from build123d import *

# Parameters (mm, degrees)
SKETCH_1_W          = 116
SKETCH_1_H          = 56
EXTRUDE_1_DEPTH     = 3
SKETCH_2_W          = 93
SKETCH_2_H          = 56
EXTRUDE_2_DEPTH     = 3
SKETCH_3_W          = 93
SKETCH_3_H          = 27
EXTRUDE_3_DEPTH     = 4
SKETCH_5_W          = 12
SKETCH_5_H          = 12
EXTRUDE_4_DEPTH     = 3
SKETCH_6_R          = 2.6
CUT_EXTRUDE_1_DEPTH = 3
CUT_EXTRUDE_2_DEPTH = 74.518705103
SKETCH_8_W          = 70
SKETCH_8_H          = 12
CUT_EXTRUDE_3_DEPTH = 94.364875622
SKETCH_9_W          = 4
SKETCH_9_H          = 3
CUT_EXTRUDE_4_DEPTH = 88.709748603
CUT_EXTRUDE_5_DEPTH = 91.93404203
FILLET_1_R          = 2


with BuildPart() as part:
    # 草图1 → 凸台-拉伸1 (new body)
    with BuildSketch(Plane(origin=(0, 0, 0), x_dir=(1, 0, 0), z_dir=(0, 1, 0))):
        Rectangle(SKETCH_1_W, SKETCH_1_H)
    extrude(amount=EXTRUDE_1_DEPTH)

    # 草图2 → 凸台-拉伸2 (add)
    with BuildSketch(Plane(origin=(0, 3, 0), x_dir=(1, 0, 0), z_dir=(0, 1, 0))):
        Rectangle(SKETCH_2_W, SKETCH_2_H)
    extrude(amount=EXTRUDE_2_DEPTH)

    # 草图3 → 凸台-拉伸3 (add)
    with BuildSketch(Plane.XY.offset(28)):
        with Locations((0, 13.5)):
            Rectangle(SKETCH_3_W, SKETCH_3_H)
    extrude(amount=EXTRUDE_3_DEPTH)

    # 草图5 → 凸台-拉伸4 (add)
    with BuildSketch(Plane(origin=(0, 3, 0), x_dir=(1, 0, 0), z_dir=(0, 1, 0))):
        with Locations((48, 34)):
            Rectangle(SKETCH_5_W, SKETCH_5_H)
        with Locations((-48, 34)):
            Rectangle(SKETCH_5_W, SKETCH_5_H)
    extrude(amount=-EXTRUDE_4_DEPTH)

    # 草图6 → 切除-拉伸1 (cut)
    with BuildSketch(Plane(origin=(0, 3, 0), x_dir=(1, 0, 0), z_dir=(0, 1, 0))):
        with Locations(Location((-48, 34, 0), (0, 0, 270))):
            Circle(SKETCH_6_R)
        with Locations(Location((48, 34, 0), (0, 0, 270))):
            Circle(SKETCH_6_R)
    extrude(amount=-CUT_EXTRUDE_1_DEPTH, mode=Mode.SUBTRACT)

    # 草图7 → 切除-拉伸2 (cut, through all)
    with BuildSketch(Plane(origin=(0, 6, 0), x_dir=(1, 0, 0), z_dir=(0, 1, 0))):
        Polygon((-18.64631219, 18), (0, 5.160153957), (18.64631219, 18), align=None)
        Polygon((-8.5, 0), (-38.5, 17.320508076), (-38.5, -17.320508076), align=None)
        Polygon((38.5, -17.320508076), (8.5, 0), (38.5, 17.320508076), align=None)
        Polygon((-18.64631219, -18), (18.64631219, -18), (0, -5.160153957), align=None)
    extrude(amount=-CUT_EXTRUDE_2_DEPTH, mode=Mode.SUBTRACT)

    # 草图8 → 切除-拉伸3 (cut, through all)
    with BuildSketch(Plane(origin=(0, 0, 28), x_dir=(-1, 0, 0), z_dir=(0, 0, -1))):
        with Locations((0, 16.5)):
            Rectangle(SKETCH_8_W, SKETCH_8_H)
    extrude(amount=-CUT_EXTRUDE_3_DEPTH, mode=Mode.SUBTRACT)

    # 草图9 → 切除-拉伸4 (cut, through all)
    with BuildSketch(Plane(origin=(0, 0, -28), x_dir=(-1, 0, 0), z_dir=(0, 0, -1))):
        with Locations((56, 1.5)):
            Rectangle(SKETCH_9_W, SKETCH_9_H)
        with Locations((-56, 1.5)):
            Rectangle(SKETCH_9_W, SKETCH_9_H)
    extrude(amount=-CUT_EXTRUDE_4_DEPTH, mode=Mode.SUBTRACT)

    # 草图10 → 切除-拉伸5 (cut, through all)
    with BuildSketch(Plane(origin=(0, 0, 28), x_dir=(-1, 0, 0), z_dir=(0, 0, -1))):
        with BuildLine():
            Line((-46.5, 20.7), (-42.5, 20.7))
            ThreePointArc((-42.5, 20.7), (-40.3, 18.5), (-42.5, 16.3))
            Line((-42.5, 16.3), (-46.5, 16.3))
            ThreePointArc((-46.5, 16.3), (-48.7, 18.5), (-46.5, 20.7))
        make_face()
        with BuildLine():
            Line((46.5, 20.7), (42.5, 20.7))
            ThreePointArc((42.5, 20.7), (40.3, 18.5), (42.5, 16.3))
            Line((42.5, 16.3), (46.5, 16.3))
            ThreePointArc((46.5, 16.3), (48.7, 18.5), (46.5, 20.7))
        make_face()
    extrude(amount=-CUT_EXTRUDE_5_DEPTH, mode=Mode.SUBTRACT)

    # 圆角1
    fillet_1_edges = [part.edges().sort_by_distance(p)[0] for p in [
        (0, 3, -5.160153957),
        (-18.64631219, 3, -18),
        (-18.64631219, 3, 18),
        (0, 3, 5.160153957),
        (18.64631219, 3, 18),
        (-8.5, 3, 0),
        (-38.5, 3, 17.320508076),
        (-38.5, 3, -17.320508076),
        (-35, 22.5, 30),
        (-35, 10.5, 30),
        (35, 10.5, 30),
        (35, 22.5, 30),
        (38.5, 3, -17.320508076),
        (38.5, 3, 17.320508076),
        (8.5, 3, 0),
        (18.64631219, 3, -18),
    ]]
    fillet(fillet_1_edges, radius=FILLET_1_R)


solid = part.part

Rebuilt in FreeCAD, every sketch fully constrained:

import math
import FreeCAD as App
import Part
import Sketcher

V = App.Vector
Q = App.Units.Quantity


def edges_at(feature, points):
    """Names of the edges that pass closest to the given points."""
    edges = feature.Shape.Edges
    near = lambda p: min(range(len(edges)), key=lambda i: edges[i].distToShape(Part.Vertex(*p))[0])
    return sorted({f"Edge{near(p) + 1}" for p in points})

doc = App.newDocument("Part")
body = doc.addObject("PartDesign::Body", "Body")

# Sketch on XZ plane
sketch1 = body.newObject("Sketcher::SketchObject", "Sketch")
sketch1.AttachmentSupport = (doc.getObject("XZ_Plane"), [""])
sketch1.MapMode = "FlatFace"
sketch1.addGeometry([
    Part.LineSegment(V(-58, -28, 0), V(-58, 28, 0)),
    Part.LineSegment(V(-58, 28, 0), V(58, 28, 0)),
    Part.LineSegment(V(58, 28, 0), V(58, -28, 0)),
    Part.LineSegment(V(58, -28, 0), V(-58, -28, 0)),
], False)
sketch1.addConstraint([
    Sketcher.Constraint("Coincident", 0, 2, 1, 1),
    Sketcher.Constraint("Coincident", 1, 2, 2, 1),
    Sketcher.Constraint("Coincident", 2, 2, 3, 1),
    Sketcher.Constraint("Coincident", 3, 2, 0, 1),
    Sketcher.Constraint("Vertical", 0),
    Sketcher.Constraint("Horizontal", 1),
    Sketcher.Constraint("Vertical", 2),
    Sketcher.Constraint("Horizontal", 3),
    Sketcher.Constraint("Symmetric", 0, 2, 2, 2, -1, 1),
    Sketcher.Constraint("DistanceX", 1, 1, 1, 2, 116.0),
    Sketcher.Constraint("DistanceY", 0, 1, 0, 2, 56.0),
])
pad1 = body.newObject("PartDesign::Pad", "Pad")
pad1.Profile = sketch1
pad1.Length = 3
pad1.Reversed = True

# Sketch on XZ plane
sketch2 = body.newObject("Sketcher::SketchObject", "Sketch001")
sketch2.AttachmentSupport = (doc.getObject("XZ_Plane"), [""])
sketch2.MapMode = "FlatFace"
sketch2.AttachmentOffset = App.Placement(V(0, 0, -3), App.Rotation())
sketch2.addGeometry([
    Part.LineSegment(V(-46, -28, 0), V(-46, 28, 0)),
    Part.LineSegment(V(-46, 28, 0), V(46, 28, 0)),
    Part.LineSegment(V(46, 28, 0), V(46, -28, 0)),
    Part.LineSegment(V(46, -28, 0), V(-46, -28, 0)),
], False)
sketch2.addConstraint([
    Sketcher.Constraint("Coincident", 0, 2, 1, 1),
    Sketcher.Constraint("Coincident", 1, 2, 2, 1),
    Sketcher.Constraint("Coincident", 2, 2, 3, 1),
    Sketcher.Constraint("Coincident", 3, 2, 0, 1),
    Sketcher.Constraint("Vertical", 0),
    Sketcher.Constraint("Horizontal", 1),
    Sketcher.Constraint("Vertical", 2),
    Sketcher.Constraint("Horizontal", 3),
    Sketcher.Constraint("Symmetric", 0, 2, 2, 2, -1, 1),
    Sketcher.Constraint("DistanceX", 1, 1, 1, 2, 93.0),
    Sketcher.Constraint("DistanceY", 0, 1, 0, 2, 56.0),
])
pad2 = body.newObject("PartDesign::Pad", "Pad001")
pad2.Profile = sketch2
pad2.Length = 3
pad2.Reversed = True

# Sketch on XY plane
sketch3 = body.newObject("Sketcher::SketchObject", "Sketch002")
sketch3.AttachmentSupport = (doc.getObject("XY_Plane"), [""])
sketch3.MapMode = "FlatFace"
sketch3.AttachmentOffset = App.Placement(V(0, 0, 28), App.Rotation())
sketch3.addGeometry([
    Part.LineSegment(V(-46, 27, 0), V(-46, 0, 0)),
    Part.LineSegment(V(-46, 0, 0), V(46, 0, 0)),
    Part.LineSegment(V(46, 0, 0), V(46, 27, 0)),
    Part.LineSegment(V(46, 27, 0), V(-46, 27, 0)),
], False)
sketch3.addConstraint([
    Sketcher.Constraint("Coincident", 0, 2, 1, 1),
    Sketcher.Constraint("Coincident", 1, 2, 2, 1),
    Sketcher.Constraint("Coincident", 2, 2, 3, 1),
    Sketcher.Constraint("Coincident", 3, 2, 0, 1),
    Sketcher.Constraint("Vertical", 0),
    Sketcher.Constraint("Horizontal", 1),
    Sketcher.Constraint("Vertical", 2),
    Sketcher.Constraint("Horizontal", 3),
    Sketcher.Constraint("Symmetric", 0, 2, 1, 2, -1, 1),
    Sketcher.Constraint("DistanceX", 1, 1, 1, 2, 93.0),
    Sketcher.Constraint("DistanceY", 0, 2, 0, 1, 27.0),
])
pad3 = body.newObject("PartDesign::Pad", "Pad002")
pad3.Profile = sketch3
pad3.Length = 4

# Sketch on XZ plane
sketch4 = body.newObject("Sketcher::SketchObject", "Sketch003")
sketch4.AttachmentSupport = (doc.getObject("XZ_Plane"), [""])
sketch4.MapMode = "FlatFace"
sketch4.AttachmentOffset = App.Placement(V(0, 0, -3), App.Rotation())
sketch4.addGeometry([
    Part.LineSegment(V(42, -40, 0), V(42, -28, 0)),  # 0
    Part.LineSegment(V(42, -28, 0), V(54, -28, 0)),  # 1
    Part.LineSegment(V(54, -28, 0), V(54, -40, 0)),  # 2
    Part.LineSegment(V(54, -40, 0), V(42, -40, 0)),  # 3
    Part.LineSegment(V(-54, -40, 0), V(-54, -28, 0)),  # 4
    Part.LineSegment(V(-54, -28, 0), V(-42, -28, 0)),  # 5
    Part.LineSegment(V(-42, -28, 0), V(-42, -40, 0)),  # 6
    Part.LineSegment(V(-42, -40, 0), V(-54, -40, 0)),  # 7
], False)
sketch4.addConstraint([
    Sketcher.Constraint("Coincident", 0, 2, 1, 1),
    Sketcher.Constraint("Coincident", 1, 2, 2, 1),
    Sketcher.Constraint("Coincident", 2, 2, 3, 1),
    Sketcher.Constraint("Coincident", 3, 2, 0, 1),
    Sketcher.Constraint("Coincident", 4, 2, 5, 1),
    Sketcher.Constraint("Coincident", 5, 2, 6, 1),
    Sketcher.Constraint("Coincident", 6, 2, 7, 1),
    Sketcher.Constraint("Coincident", 7, 2, 4, 1),
    Sketcher.Constraint("Vertical", 0),
    Sketcher.Constraint("Horizontal", 1),
    Sketcher.Constraint("Vertical", 2),
    Sketcher.Constraint("Horizontal", 3),
    Sketcher.Constraint("Vertical", 4),
    Sketcher.Constraint("Horizontal", 5),
    Sketcher.Constraint("Vertical", 6),
    Sketcher.Constraint("Horizontal", 7),
    Sketcher.Constraint("Symmetric", 1, 2, 4, 2, -2),
    Sketcher.Constraint("Symmetric", 3, 2, 6, 2, -2),
    Sketcher.Constraint("Equal", 7, 0),
    Sketcher.Constraint("DistanceX", 1, 1, 1, 2, 12.0),
    Sketcher.Constraint("DistanceX", -1, 1, 0, 2, 42.0),
    Sketcher.Constraint("DistanceY", 0, 2, -1, 1, 28.0),
])
pad4 = body.newObject("PartDesign::Pad", "Pad003")
pad4.Profile = sketch4
pad4.Length = 3

# Sketch on XZ plane
sketch5 = body.newObject("Sketcher::SketchObject", "Sketch004")
sketch5.AttachmentSupport = (doc.getObject("XZ_Plane"), [""])
sketch5.MapMode = "FlatFace"
sketch5.AttachmentOffset = App.Placement(V(0, 0, -3), App.Rotation())
sketch5.addGeometry([
    Part.Circle(V(-48, -34, 0), V(0, 0, 1), 2.6),
    Part.Circle(V(48, -34, 0), V(0, 0, 1), 2.6),
], False)
sketch5.addConstraint([
    Sketcher.Constraint("Equal", 0, 1),
    Sketcher.Constraint("Symmetric", 0, 3, 1, 3, -2),
    Sketcher.Constraint("Diameter", 0, 5.2),
    Sketcher.Constraint("DistanceX", 0, 3, -1, 1, 48.0),
    Sketcher.Constraint("DistanceY", 0, 3, -1, 1, 34.0),
])
pocket1 = body.newObject("PartDesign::Pocket", "Pocket")
pocket1.Profile = sketch5
pocket1.Length = 3
pocket1.Reversed = True

# Sketch on XZ plane
sketch6 = body.newObject("Sketcher::SketchObject", "Sketch005")
sketch6.AttachmentSupport = (doc.getObject("XZ_Plane"), [""])
sketch6.MapMode = "FlatFace"
sketch6.AttachmentOffset = App.Placement(V(0, 0, -6), App.Rotation())
sketch6.addGeometry([
    Part.LineSegment(V(-19, -18, 0), V(0, -5, 0)),  # 0
    Part.LineSegment(V(0, -5, 0), V(19, -18, 0)),  # 1
    Part.LineSegment(V(19, -18, 0), V(-19, -18, 0)),  # 2
    Part.LineSegment(V(-8, 0, 0), V(-38, -17, 0)),  # 3
    Part.LineSegment(V(-38, -17, 0), V(-38, 17, 0)),  # 4
    Part.LineSegment(V(-38, 17, 0), V(-8, 0, 0)),  # 5
    Part.LineSegment(V(8, 0, 0), V(38, 17, 0)),  # 6
    Part.LineSegment(V(38, 17, 0), V(38, -17, 0)),  # 7
    Part.LineSegment(V(38, -17, 0), V(8, 0, 0)),  # 8
    Part.LineSegment(V(-19, 18, 0), V(19, 18, 0)),  # 9
    Part.LineSegment(V(19, 18, 0), V(0, 5, 0)),  # 10
    Part.LineSegment(V(0, 5, 0), V(-19, 18, 0)),  # 11
], False)
sketch6.addConstraint([
    Sketcher.Constraint("Coincident", 0, 2, 1, 1),
    Sketcher.Constraint("Coincident", 1, 2, 2, 1),
    Sketcher.Constraint("Coincident", 2, 2, 0, 1),
    Sketcher.Constraint("Coincident", 3, 2, 4, 1),
    Sketcher.Constraint("Coincident", 4, 2, 5, 1),
    Sketcher.Constraint("Coincident", 5, 2, 3, 1),
    Sketcher.Constraint("Coincident", 6, 2, 7, 1),
    Sketcher.Constraint("Coincident", 7, 2, 8, 1),
    Sketcher.Constraint("Coincident", 8, 2, 6, 1),
    Sketcher.Constraint("Coincident", 9, 2, 10, 1),
    Sketcher.Constraint("Coincident", 10, 2, 11, 1),
    Sketcher.Constraint("Coincident", 11, 2, 9, 1),
    Sketcher.Constraint("Horizontal", 2),
    Sketcher.Constraint("Vertical", 4),
    Sketcher.Constraint("Vertical", 7),
    Sketcher.Constraint("Horizontal", 9),
    Sketcher.Constraint("Symmetric", 3, 2, 6, 2, -1, 1),
    Sketcher.Constraint("Symmetric", 5, 2, 8, 2, -1, 1),
    Sketcher.Constraint("Symmetric", 2, 2, 9, 2, -1, 1),
    Sketcher.Constraint("Symmetric", 0, 2, 10, 2, -1, 1),
    Sketcher.Constraint("PointOnObject", 0, 2, -2),
    Sketcher.Constraint("PointOnObject", 5, 2, -1),
    Sketcher.Constraint("Parallel", 5, 8),
    Sketcher.Constraint("Parallel", 1, 11),
    Sketcher.Constraint("Horizontal", 4, 2, 6, 2),
    Sketcher.Constraint("Vertical", 1, 2, 9, 2),
    Sketcher.Constraint("Angle", 3, Q("-150 deg")),
    Sketcher.Constraint("DistanceY", 1, 2, -1, 1, 18.0),
    Sketcher.Constraint("DistanceX", 3, 2, 5, 2, 30.0),
    Sketcher.Constraint("DistanceX", 5, 2, 6, 2, 47.0),
    Sketcher.Constraint("DistanceX", 2, 2, 2, 1, 37.292624),
    Sketcher.Constraint("Distance", 0, 22.639492),
])
pocket2 = body.newObject("PartDesign::Pocket", "Pocket001")
pocket2.Profile = sketch6
pocket2.Type = "ThroughAll"
pocket2.Reversed = True

# Sketch on XY plane
sketch7 = body.newObject("Sketcher::SketchObject", "Sketch006")
sketch7.AttachmentSupport = (doc.getObject("XY_Plane"), [""])
sketch7.MapMode = "FlatFace"
sketch7.AttachmentOffset = App.Placement(V(0, 0, 28), App.Rotation())
sketch7.addGeometry([
    Part.LineSegment(V(35, 22, 0), V(35, 10, 0)),
    Part.LineSegment(V(35, 10, 0), V(-35, 10, 0)),
    Part.LineSegment(V(-35, 10, 0), V(-35, 22, 0)),
    Part.LineSegment(V(-35, 22, 0), V(35, 22, 0)),
], False)
sketch7.addConstraint([
    Sketcher.Constraint("Coincident", 0, 2, 1, 1),
    Sketcher.Constraint("Coincident", 1, 2, 2, 1),
    Sketcher.Constraint("Coincident", 2, 2, 3, 1),
    Sketcher.Constraint("Coincident", 3, 2, 0, 1),
    Sketcher.Constraint("Vertical", 0),
    Sketcher.Constraint("Horizontal", 1),
    Sketcher.Constraint("Vertical", 2),
    Sketcher.Constraint("Horizontal", 3),
    Sketcher.Constraint("DistanceX", 1, 2, 1, 1, 70.0),
    Sketcher.Constraint("DistanceY", 0, 2, 0, 1, 12.0),
    Sketcher.Constraint("DistanceX", -1, 1, 0, 2, 35.0),
    Sketcher.Constraint("DistanceY", -1, 1, 0, 2, 10.5),
])
pocket3 = body.newObject("PartDesign::Pocket", "Pocket002")
pocket3.Profile = sketch7
pocket3.Type = "ThroughAll"
pocket3.Reversed = True

# Sketch on XY plane
sketch8 = body.newObject("Sketcher::SketchObject", "Sketch007")
sketch8.AttachmentSupport = (doc.getObject("XY_Plane"), [""])
sketch8.MapMode = "FlatFace"
sketch8.AttachmentOffset = App.Placement(V(0, 0, -28), App.Rotation())
sketch8.addGeometry([
    Part.LineSegment(V(-54, 3, 0), V(-54, 0, 0)),  # 0
    Part.LineSegment(V(-54, 0, 0), V(-58, 0, 0)),  # 1
    Part.LineSegment(V(-58, 0, 0), V(-58, 3, 0)),  # 2
    Part.LineSegment(V(-58, 3, 0), V(-54, 3, 0)),  # 3
    Part.LineSegment(V(58, 3, 0), V(58, 0, 0)),  # 4
    Part.LineSegment(V(58, 0, 0), V(54, 0, 0)),  # 5
    Part.LineSegment(V(54, 0, 0), V(54, 3, 0)),  # 6
    Part.LineSegment(V(54, 3, 0), V(58, 3, 0)),  # 7
], False)
sketch8.addConstraint([
    Sketcher.Constraint("Coincident", 0, 2, 1, 1),
    Sketcher.Constraint("Coincident", 1, 2, 2, 1),
    Sketcher.Constraint("Coincident", 2, 2, 3, 1),
    Sketcher.Constraint("Coincident", 3, 2, 0, 1),
    Sketcher.Constraint("Coincident", 4, 2, 5, 1),
    Sketcher.Constraint("Coincident", 5, 2, 6, 1),
    Sketcher.Constraint("Coincident", 6, 2, 7, 1),
    Sketcher.Constraint("Coincident", 7, 2, 4, 1),
    Sketcher.Constraint("Vertical", 0),
    Sketcher.Constraint("Horizontal", 1),
    Sketcher.Constraint("Vertical", 2),
    Sketcher.Constraint("Horizontal", 3),
    Sketcher.Constraint("Vertical", 4),
    Sketcher.Constraint("Horizontal", 5),
    Sketcher.Constraint("Vertical", 6),
    Sketcher.Constraint("Horizontal", 7),
    Sketcher.Constraint("Symmetric", 1, 2, 4, 2, -1, 1),
    Sketcher.Constraint("Symmetric", 0, 2, 5, 2, -2),
    Sketcher.Constraint("Horizontal", 3, 2, 6, 2),
    Sketcher.Constraint("DistanceX", 1, 2, 1, 1, 4.0),
    Sketcher.Constraint("DistanceY", 0, 2, 0, 1, 3.0),
    Sketcher.Constraint("DistanceX", 0, 2, -1, 1, 54.0),
])
pocket4 = body.newObject("PartDesign::Pocket", "Pocket003")
pocket4.Profile = sketch8
pocket4.Type = "ThroughAll"
pocket4.Reversed = True

# Sketch on XY plane
sketch9 = body.newObject("Sketcher::SketchObject", "Sketch008")
sketch9.AttachmentSupport = (doc.getObject("XY_Plane"), [""])
sketch9.MapMode = "FlatFace"
sketch9.AttachmentOffset = App.Placement(V(0, 0, 28), App.Rotation())
sketch9.addGeometry([
    Part.LineSegment(V(42.5, 20.7, 0), V(46.5, 20.7, 0)),  # 0
    Part.ArcOfCircle(Part.Circle(V(46.5, 18.5, 0), V(0, 0, 1), 2.2), math.radians(-90), math.radians(90)),  # 1
    Part.LineSegment(V(46.5, 16.3, 0), V(42.5, 16.3, 0)),  # 2
    Part.ArcOfCircle(Part.Circle(V(42.5, 18.5, 0), V(0, 0, 1), 2.2), math.radians(90), math.radians(270)),  # 3
    Part.LineSegment(V(-46.5, 20.7, 0), V(-42.5, 20.7, 0)),  # 4
    Part.ArcOfCircle(Part.Circle(V(-42.5, 18.5, 0), V(0, 0, 1), 2.2), math.radians(-90), math.radians(90)),  # 5
    Part.LineSegment(V(-42.5, 16.3, 0), V(-46.5, 16.3, 0)),  # 6
    Part.ArcOfCircle(Part.Circle(V(-46.5, 18.5, 0), V(0, 0, 1), 2.2), math.radians(90), math.radians(270)),  # 7
], False)
sketch9.addConstraint([
    Sketcher.Constraint("Tangent", 0, 2, 1, 2),
    Sketcher.Constraint("Tangent", 1, 1, 2, 1),
    Sketcher.Constraint("Tangent", 2, 2, 3, 2),
    Sketcher.Constraint("Tangent", 3, 1, 0, 1),
    Sketcher.Constraint("Tangent", 4, 2, 5, 2),
    Sketcher.Constraint("Tangent", 5, 1, 6, 1),
    Sketcher.Constraint("Tangent", 6, 2, 7, 2),
    Sketcher.Constraint("Tangent", 7, 1, 4, 1),
    Sketcher.Constraint("Horizontal", 0),
    Sketcher.Constraint("Horizontal", 2),
    Sketcher.Constraint("Horizontal", 4),
    Sketcher.Constraint("Horizontal", 6),
    Sketcher.Constraint("Equal", 3, 5),
    Sketcher.Constraint("Symmetric", 3, 3, 5, 3, -2),
    Sketcher.Constraint("Equal", 2, 4),
    Sketcher.Constraint("Radius", 1, 2.2),
    Sketcher.Constraint("DistanceX", 0, 1, 0, 2, 4.0),
    Sketcher.Constraint("DistanceX", 5, 3, 3, 3, 85.0),
    Sketcher.Constraint("DistanceY", -1, 1, 1, 3, 18.5),
])
pocket5 = body.newObject("PartDesign::Pocket", "Pocket004")
pocket5.Profile = sketch9
pocket5.Type = "ThroughAll"
pocket5.Reversed = True
doc.recompute()

fillet = body.newObject("PartDesign::Fillet", "Fillet")
fillet.Base = (pocket5, edges_at(pocket5, [
    (0, 3, -5.16),
    (-18.646, 3, -18),
    (-18.646, 3, 18),
    (0, 3, 5.16),
    (18.646, 3, 18),
    (-8.5, 3, 0),
    (-38.5, 3, 17.321),
    (-38.5, 3, -17.321),
    (-35, 22.5, 30),
    (-35, 10.5, 30),
    (35, 10.5, 30),
    (35, 22.5, 30),
    (38.5, 3, -17.321),
    (38.5, 3, 17.321),
    (8.5, 3, 0),
    (18.646, 3, -18),
]))
fillet.Radius = 2

doc.recompute()
